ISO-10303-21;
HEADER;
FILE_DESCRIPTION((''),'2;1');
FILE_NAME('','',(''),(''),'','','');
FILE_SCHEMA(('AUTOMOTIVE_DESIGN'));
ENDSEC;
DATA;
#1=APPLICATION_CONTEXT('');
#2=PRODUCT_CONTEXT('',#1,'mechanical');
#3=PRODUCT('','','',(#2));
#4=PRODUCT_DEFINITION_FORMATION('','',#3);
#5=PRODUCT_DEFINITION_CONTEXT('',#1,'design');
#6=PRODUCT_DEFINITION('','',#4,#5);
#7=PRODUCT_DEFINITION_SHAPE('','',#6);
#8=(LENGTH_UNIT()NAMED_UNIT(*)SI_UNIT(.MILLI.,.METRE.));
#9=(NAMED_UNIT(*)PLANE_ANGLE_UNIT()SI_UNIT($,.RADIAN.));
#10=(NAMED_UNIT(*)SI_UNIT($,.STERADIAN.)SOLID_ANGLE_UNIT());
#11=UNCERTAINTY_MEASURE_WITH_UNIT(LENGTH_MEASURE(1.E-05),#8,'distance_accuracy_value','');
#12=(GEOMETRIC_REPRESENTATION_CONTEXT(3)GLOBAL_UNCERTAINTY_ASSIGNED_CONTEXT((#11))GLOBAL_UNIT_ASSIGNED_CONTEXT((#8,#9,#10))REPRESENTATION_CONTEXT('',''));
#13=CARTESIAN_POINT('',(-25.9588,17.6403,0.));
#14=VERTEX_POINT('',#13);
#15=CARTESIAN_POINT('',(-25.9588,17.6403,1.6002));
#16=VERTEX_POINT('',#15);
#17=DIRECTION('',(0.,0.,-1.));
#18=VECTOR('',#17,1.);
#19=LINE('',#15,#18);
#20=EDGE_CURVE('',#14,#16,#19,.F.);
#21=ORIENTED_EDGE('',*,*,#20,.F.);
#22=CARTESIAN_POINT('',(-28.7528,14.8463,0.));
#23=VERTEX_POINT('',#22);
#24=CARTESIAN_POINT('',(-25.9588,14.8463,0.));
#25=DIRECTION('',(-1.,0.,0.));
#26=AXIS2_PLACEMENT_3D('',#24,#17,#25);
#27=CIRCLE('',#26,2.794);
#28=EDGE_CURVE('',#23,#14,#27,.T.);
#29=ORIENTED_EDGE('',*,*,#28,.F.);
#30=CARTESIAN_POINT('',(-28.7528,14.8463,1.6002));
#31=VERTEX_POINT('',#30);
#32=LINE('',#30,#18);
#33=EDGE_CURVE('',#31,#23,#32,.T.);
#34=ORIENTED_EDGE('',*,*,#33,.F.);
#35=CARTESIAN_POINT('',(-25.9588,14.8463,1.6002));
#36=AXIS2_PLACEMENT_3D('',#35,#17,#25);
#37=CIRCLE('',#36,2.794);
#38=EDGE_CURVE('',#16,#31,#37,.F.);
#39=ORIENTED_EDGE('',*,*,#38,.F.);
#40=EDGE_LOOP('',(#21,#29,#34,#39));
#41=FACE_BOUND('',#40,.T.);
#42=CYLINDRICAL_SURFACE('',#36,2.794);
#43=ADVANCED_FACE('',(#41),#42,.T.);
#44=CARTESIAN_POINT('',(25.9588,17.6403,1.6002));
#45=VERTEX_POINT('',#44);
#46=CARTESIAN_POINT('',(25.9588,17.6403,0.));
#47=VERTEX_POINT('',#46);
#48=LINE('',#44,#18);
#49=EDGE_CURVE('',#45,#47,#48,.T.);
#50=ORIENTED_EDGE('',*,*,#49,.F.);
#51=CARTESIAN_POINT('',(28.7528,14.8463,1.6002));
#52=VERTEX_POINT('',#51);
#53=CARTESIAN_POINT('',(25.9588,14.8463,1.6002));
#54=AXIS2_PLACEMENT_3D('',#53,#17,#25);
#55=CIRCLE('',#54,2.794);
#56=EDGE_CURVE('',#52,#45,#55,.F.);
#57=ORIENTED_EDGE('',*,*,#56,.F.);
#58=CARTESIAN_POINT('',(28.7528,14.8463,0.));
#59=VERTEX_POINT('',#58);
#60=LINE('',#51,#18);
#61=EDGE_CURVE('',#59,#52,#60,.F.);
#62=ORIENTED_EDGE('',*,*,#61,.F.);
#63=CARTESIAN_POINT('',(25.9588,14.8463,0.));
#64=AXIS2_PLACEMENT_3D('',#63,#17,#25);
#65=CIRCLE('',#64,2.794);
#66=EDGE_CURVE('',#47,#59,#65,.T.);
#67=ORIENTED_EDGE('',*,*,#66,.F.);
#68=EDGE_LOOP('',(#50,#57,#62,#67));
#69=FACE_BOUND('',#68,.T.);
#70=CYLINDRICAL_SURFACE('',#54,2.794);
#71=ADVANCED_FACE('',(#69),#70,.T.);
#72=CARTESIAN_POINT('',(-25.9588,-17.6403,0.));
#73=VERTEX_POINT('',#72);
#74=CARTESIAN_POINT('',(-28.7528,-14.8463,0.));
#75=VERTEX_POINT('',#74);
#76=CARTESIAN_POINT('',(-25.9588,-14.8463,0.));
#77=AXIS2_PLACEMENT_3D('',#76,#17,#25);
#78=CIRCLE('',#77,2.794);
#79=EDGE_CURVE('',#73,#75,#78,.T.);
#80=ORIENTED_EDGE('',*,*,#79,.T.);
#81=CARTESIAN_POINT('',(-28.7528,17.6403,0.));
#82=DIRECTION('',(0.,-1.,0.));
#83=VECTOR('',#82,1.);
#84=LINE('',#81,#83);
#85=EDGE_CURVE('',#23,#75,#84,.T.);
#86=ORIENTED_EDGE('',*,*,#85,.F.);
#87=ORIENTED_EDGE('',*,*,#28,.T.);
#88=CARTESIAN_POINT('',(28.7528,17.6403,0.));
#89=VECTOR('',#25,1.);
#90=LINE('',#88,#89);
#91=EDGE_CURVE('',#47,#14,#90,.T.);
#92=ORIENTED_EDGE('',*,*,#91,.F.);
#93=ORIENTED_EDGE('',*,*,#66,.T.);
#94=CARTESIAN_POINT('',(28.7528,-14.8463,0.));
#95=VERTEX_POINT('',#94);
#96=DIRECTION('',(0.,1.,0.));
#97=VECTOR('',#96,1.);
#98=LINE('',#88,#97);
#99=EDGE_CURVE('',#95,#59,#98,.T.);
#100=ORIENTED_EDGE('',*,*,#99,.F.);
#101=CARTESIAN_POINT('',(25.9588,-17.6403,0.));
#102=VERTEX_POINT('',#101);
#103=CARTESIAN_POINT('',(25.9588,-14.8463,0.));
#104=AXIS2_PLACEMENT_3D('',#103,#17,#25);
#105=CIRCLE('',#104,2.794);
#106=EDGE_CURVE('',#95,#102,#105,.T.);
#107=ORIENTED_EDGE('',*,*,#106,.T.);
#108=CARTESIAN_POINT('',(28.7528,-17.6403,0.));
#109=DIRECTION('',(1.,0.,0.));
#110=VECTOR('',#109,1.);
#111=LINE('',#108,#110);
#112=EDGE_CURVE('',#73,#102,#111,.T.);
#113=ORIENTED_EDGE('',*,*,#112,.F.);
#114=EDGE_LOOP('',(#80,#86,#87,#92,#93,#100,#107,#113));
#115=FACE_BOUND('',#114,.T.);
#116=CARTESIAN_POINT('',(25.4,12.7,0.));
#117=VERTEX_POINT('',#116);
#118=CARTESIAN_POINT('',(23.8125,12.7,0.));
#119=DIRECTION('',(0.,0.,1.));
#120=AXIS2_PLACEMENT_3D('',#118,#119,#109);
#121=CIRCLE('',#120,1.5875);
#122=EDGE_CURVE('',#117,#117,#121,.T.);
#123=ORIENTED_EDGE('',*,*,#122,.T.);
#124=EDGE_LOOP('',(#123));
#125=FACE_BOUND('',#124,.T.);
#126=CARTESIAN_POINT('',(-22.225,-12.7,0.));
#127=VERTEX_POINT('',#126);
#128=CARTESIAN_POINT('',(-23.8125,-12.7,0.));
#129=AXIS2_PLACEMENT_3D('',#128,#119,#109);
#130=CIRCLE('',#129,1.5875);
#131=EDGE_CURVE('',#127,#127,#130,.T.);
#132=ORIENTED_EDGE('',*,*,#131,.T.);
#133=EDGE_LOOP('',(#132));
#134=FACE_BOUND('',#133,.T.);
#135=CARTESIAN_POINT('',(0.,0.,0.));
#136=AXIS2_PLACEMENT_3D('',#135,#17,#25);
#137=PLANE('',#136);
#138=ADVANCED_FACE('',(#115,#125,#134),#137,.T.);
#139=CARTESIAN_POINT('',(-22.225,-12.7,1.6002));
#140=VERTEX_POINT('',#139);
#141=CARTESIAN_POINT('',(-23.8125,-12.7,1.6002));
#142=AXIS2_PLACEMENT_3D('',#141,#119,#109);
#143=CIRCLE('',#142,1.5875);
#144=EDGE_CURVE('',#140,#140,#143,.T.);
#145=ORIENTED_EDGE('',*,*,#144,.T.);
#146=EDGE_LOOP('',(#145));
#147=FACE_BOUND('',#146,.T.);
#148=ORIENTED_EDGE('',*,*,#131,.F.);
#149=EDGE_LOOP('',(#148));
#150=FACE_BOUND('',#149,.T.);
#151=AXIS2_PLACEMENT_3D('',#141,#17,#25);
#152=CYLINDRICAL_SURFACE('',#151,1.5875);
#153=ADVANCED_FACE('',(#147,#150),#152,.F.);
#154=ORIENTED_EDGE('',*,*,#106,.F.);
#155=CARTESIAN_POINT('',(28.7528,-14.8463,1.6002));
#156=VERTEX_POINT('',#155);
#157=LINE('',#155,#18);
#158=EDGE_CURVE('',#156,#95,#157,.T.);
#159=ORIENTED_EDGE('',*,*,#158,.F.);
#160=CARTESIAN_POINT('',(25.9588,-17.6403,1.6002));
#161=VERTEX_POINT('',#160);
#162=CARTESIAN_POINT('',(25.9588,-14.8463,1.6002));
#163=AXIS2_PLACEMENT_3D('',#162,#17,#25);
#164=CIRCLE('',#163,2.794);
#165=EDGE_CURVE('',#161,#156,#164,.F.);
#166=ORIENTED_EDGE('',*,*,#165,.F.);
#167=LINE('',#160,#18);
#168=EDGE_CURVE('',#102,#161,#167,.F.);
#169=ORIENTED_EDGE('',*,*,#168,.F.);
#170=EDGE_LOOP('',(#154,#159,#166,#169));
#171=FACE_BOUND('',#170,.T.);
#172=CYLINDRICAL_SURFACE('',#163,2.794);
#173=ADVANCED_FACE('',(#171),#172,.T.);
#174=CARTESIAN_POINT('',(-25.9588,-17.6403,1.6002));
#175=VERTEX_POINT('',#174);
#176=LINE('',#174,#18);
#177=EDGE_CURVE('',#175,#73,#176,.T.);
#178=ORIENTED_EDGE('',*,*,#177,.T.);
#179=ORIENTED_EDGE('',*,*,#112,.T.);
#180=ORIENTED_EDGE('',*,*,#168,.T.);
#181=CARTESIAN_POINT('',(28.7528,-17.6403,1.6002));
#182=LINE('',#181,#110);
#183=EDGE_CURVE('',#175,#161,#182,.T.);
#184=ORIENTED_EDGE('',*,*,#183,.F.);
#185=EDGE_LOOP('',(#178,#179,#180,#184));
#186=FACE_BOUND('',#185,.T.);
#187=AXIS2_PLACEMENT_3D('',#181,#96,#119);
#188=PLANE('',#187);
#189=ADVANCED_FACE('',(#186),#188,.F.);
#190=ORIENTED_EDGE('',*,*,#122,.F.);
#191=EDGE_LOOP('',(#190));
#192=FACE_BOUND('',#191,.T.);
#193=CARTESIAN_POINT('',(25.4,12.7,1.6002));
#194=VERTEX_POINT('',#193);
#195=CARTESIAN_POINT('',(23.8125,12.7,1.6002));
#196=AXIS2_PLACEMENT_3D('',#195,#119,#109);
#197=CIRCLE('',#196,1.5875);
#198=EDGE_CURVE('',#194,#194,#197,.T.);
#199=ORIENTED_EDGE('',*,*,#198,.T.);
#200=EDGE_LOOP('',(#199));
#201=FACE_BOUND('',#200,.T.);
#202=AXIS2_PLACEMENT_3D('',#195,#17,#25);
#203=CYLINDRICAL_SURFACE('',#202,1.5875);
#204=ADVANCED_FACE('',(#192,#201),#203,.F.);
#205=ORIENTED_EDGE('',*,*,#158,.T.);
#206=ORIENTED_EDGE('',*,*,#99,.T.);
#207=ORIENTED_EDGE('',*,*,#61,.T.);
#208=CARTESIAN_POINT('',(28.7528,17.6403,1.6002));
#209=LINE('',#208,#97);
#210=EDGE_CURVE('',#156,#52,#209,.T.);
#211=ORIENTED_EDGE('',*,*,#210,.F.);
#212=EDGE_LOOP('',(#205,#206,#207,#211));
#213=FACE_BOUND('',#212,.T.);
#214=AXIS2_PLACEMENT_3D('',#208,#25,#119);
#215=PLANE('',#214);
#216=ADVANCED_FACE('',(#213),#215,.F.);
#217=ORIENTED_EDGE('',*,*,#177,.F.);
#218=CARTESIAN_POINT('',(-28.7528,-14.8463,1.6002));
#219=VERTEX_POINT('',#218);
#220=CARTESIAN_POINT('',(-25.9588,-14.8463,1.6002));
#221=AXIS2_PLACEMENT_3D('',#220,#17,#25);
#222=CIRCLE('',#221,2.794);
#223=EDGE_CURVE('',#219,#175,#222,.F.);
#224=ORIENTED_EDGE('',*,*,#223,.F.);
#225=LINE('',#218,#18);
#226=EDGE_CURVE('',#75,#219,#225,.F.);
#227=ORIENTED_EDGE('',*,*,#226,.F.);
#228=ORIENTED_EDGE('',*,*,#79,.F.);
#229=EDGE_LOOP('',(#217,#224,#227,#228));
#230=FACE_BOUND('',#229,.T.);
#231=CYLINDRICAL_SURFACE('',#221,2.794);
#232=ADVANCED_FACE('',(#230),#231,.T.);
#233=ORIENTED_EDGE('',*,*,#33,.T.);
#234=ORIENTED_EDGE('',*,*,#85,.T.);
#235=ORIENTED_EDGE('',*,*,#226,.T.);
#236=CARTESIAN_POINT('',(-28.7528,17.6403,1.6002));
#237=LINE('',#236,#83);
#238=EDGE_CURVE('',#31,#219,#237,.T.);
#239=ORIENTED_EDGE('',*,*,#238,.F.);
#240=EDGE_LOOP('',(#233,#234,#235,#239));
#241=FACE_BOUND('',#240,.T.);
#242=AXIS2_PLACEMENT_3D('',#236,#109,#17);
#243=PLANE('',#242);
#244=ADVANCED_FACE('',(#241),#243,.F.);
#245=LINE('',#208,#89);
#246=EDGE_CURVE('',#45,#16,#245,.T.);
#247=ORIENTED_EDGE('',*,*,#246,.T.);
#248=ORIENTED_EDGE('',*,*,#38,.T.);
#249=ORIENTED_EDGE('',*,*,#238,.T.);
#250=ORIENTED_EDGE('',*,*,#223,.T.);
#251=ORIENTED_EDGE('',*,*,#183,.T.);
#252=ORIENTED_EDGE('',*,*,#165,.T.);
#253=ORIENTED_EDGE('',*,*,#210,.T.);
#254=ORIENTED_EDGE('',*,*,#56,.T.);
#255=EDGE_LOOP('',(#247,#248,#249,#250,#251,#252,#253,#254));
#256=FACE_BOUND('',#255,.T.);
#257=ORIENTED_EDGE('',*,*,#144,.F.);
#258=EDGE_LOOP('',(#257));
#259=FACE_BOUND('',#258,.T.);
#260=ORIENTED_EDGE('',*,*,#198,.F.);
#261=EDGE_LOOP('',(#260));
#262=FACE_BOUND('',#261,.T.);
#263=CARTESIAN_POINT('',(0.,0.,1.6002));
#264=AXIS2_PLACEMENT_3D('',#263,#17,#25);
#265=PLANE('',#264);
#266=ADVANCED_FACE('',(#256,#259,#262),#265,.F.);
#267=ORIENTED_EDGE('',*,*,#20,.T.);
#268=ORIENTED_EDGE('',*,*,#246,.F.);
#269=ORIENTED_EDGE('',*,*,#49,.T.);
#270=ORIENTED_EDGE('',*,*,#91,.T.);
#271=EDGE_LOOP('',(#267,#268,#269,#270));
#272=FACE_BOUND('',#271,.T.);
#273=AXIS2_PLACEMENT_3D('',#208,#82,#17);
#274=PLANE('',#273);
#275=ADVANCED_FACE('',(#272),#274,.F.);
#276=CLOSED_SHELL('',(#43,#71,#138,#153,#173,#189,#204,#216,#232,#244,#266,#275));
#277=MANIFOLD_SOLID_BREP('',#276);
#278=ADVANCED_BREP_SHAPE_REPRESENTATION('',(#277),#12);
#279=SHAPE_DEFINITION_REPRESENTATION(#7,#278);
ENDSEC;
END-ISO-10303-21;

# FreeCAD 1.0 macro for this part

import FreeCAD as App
import Part
import Sketcher
Q = App.Units.Quantity


def edges_at(feature, points):
    """Names of the edges that pass closest to the given points."""
    edges = feature.Shape.Edges
    near = lambda p: min(range(len(edges)), key=lambda i: edges[i].distToShape(Part.Vertex(*p))[0])
    return sorted({f"Edge{near(p) + 1}" for p in points})


def add_polygon(sketch, points):
    """Adds a closed chain of lines whose ends are joined by coincident constraints."""
    first, n = sketch.GeometryCount, len(points)
    for a, b in zip(points, points[1:] + points[:1]):
        sketch.addGeometry(Part.LineSegment(App.Vector(*a, 0), App.Vector(*b, 0)), False)
    for i in range(n):
        sketch.addConstraint(Sketcher.Constraint("Coincident", first + i, 2, first + (i + 1) % n, 1))

doc = App.newDocument("Part")
body = doc.addObject("PartDesign::Body", "Body")

sketch1 = body.newObject("Sketcher::SketchObject", "Sketch")
sketch1.AttachmentSupport = (doc.getObject("XY_Plane"), [""])
sketch1.MapMode = "FlatFace"
add_polygon(sketch1, [(-28.8, 17.6), (-28.8, -17.6), (28.8, -17.6), (28.8, 17.6)])
sketch1.addGeometry(Part.Circle(App.Vector(-23.8, -12.7, 0), App.Vector(0, 0, 1), 1.6), False)
sketch1.addGeometry(Part.Circle(App.Vector(23.8, 12.7, 0), App.Vector(0, 0, 1), 1.6), False)
sketch1.addConstraint([
    Sketcher.Constraint("Vertical", 0),
    Sketcher.Constraint("Horizontal", 1),
    Sketcher.Constraint("Vertical", 2),
    Sketcher.Constraint("Horizontal", 3),
    Sketcher.Constraint("Equal", 4, 5),
    Sketcher.Constraint("Symmetric", 4, 3, 5, 3, -1, 1),
    Sketcher.Constraint("Symmetric", 0, 2, 2, 2, -1, 1),
    Sketcher.Constraint("Diameter", 4, Q("0.125 in")),
    Sketcher.Constraint("DistanceY", 4, 3, 5, 3, Q("1 in")),
    Sketcher.Constraint("DistanceX", 1, 1, 1, 2, Q("2.264 in")),
    Sketcher.Constraint("DistanceY", 0, 2, 0, 1, Q("1.389 in")),
    Sketcher.Constraint("DistanceX", 4, 3, -1, 1, Q("0.9375 in")),
])
pad1 = body.newObject("PartDesign::Pad", "Pad")
pad1.Profile = sketch1
pad1.Length = Q("0.063 in")
doc.recompute()

fillet = body.newObject("PartDesign::Fillet", "Fillet")
fillet.Base = (pad1, edges_at(pad1, [
    (-28.753, 17.64, 0.8),
    (28.753, 17.64, 0.8),
    (28.753, -17.64, 0.8),
    (-28.753, -17.64, 0.8),
]))
fillet.Radius = Q("0.11 in")

doc.recompute()
